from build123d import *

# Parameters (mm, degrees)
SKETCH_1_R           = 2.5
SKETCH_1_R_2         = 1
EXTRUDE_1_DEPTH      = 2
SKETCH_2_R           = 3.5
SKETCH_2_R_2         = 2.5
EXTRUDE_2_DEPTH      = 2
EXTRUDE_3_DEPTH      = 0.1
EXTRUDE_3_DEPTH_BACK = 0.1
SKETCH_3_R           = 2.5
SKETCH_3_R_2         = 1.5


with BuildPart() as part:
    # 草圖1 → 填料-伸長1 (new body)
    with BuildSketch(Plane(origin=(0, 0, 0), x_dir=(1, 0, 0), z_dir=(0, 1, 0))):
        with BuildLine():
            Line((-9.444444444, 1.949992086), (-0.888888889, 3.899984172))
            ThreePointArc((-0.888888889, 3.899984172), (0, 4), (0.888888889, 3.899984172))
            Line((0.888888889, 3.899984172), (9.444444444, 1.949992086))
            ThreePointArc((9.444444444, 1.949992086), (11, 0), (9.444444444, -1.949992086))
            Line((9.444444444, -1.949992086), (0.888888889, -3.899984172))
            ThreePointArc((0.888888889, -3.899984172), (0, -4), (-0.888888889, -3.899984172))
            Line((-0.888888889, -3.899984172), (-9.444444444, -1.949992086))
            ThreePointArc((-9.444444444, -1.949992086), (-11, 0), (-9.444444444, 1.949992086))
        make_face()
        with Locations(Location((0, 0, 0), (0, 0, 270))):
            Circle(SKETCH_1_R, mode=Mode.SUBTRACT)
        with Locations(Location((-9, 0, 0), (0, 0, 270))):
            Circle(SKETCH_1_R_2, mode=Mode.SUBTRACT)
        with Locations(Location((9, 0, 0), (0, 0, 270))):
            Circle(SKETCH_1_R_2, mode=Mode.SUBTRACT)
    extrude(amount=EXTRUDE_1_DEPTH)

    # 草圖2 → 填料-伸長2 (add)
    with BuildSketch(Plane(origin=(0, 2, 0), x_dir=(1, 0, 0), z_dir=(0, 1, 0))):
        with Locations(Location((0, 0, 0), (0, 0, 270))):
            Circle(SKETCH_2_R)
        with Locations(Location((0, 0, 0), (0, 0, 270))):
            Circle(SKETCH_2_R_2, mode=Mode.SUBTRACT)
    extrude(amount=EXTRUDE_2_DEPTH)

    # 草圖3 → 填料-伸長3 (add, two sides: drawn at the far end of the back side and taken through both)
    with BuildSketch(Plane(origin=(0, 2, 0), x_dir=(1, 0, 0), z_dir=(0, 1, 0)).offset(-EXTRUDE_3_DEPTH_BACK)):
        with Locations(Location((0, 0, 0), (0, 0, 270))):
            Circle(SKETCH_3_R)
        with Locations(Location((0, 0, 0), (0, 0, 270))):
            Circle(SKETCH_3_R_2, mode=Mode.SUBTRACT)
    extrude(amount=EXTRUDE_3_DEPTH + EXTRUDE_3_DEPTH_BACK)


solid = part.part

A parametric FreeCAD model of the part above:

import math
import FreeCAD as App
import Part
import Sketcher

V = App.Vector

doc = App.newDocument("Part")
params = doc.addObject("Spreadsheet::Sheet", "Params")
for row, (alias, value) in enumerate([
    ("sketch1_diameter", "2 mm"),
    ("sketch1_diameter2", "5 mm"),
    ("sketch1_radius", "2 mm"),
    ("sketch1_radius2", "4 mm"),
    ("pad1_length", "2 mm"),
    ("sketch2_diameter", "7 mm"),
    ("sketch2_diameter2", "5 mm"),
    ("pad2_length", "2 mm"),
    ("sketch3_diameter", "5 mm"),
    ("sketch3_diameter2", "3 mm"),
    ("pad3_length", "0.1 mm"),
    ("pad3_length2", "0.1 mm"),
], start=1):
    params.set(f"A{row}", alias)
    params.set(f"B{row}", "=" + value)
    params.setAlias(f"B{row}", alias)

body = doc.addObject("PartDesign::Body", "Body")

# Sketch on XZ plane
sketch1 = body.newObject("Sketcher::SketchObject", "Sketch")
sketch1.AttachmentSupport = (doc.getObject("XZ_Plane"), [""])
sketch1.MapMode = "FlatFace"
sketch1.addGeometry([
    Part.LineSegment(V(-0.9, -3.9, 0), V(-9.4, -1.9, 0)),  # 0
    Part.ArcOfCircle(Part.Circle(V(-9, 0, 0), V(0, 0, 1), 2), math.radians(103), math.radians(257)),  # 1
    Part.LineSegment(V(-9.4, 1.9, 0), V(-0.9, 3.9, 0)),  # 2
    Part.ArcOfCircle(Part.Circle(V(0, 0, 0), V(0, 0, 1), 4), math.radians(77), math.radians(103)),  # 3
    Part.LineSegment(V(0.9, 3.9, 0), V(9.4, 1.9, 0)),  # 4
    Part.ArcOfCircle(Part.Circle(V(9, 0, 0), V(0, 0, 1), 2), math.radians(-77), math.radians(77)),  # 5
    Part.LineSegment(V(9.4, -1.9, 0), V(0.9, -3.9, 0)),  # 6
    Part.ArcOfCircle(Part.Circle(V(0, 0, 0), V(0, 0, 1), 4), math.radians(-103), math.radians(-77)),  # 7
    Part.Circle(V(9, 0, 0), V(0, 0, 1), 1),  # 8
    Part.Circle(V(0, 0, 0), V(0, 0, 1), 2.5),  # 9
    Part.Circle(V(-9, 0, 0), V(0, 0, 1), 1),  # 10
], False)
sketch1.addConstraint([
    Sketcher.Constraint("Tangent", 0, 2, 1, 2),
    Sketcher.Constraint("Tangent", 1, 1, 2, 1),
    Sketcher.Constraint("Tangent", 2, 2, 3, 2),
    Sketcher.Constraint("Tangent", 3, 1, 4, 1),
    Sketcher.Constraint("Tangent", 4, 2, 5, 2),
    Sketcher.Constraint("Tangent", 5, 1, 6, 1),
    Sketcher.Constraint("Tangent", 6, 2, 7, 2),
    Sketcher.Constraint("Tangent", 7, 1, 0, 1),
    Sketcher.Constraint("Coincident", 3, 3, -1, 1),
    Sketcher.Constraint("Coincident", 7, 3, -1, 1),
    Sketcher.Constraint("Coincident", 9, 3, -1, 1),
    Sketcher.Constraint("Coincident", 8, 3, 5, 3),
    Sketcher.Constraint("Coincident", 10, 3, 1, 3),
    Sketcher.Constraint("Equal", 1, 5),
    Sketcher.Constraint("Equal", 3, 7),
    Sketcher.Constraint("Equal", 8, 10),
    Sketcher.Constraint("Symmetric", 1, 3, 5, 3, -1, 1),
    Sketcher.Constraint("PointOnObject", 1, 3, -1),
    Sketcher.Constraint("Diameter", 8, 2.0),
    Sketcher.Constraint("Diameter", 9, 5.0),
    Sketcher.Constraint("Radius", 1, 2.0),
    Sketcher.Constraint("Radius", 3, 4.0),
    Sketcher.Constraint("DistanceX", 1, 3, -1, 1, 9.0),
])
sketch1.setExpression("Constraints[18]", "Params.sketch1_diameter")
sketch1.setExpression("Constraints[19]", "Params.sketch1_diameter2")
sketch1.setExpression("Constraints[20]", "Params.sketch1_radius")
sketch1.setExpression("Constraints[21]", "Params.sketch1_radius2")
pad1 = body.newObject("PartDesign::Pad", "Pad")
pad1.Profile = sketch1
pad1.setExpression("Length", "Params.pad1_length")
pad1.Reversed = True

# Sketch on XZ plane
sketch2 = body.newObject("Sketcher::SketchObject", "Sketch001")
sketch2.AttachmentSupport = (doc.getObject("XZ_Plane"), [""])
sketch2.MapMode = "FlatFace"
sketch2.AttachmentOffset = App.Placement(V(0, 0, -2), App.Rotation())
sketch2.addGeometry([
    Part.Circle(V(0, 0, 0), V(0, 0, 1), 3.5),
    Part.Circle(V(0, 0, 0), V(0, 0, 1), 2.5),
], False)
sketch2.addConstraint([
    Sketcher.Constraint("Coincident", 0, 3, -1, 1),
    Sketcher.Constraint("Coincident", 1, 3, -1, 1),
    Sketcher.Constraint("Diameter", 0, 7.0),
    Sketcher.Constraint("Diameter", 1, 5.0),
])
sketch2.setExpression("Constraints[2]", "Params.sketch2_diameter")
sketch2.setExpression("Constraints[3]", "Params.sketch2_diameter2")
pad2 = body.newObject("PartDesign::Pad", "Pad001")
pad2.Profile = sketch2
pad2.setExpression("Length", "Params.pad2_length")
pad2.Reversed = True

# Sketch on XZ plane
sketch3 = body.newObject("Sketcher::SketchObject", "Sketch002")
sketch3.AttachmentSupport = (doc.getObject("XZ_Plane"), [""])
sketch3.MapMode = "FlatFace"
sketch3.AttachmentOffset = App.Placement(V(0, 0, -2), App.Rotation())
sketch3.addGeometry([
    Part.Circle(V(0, 0, 0), V(0, 0, 1), 2.5),
    Part.Circle(V(0, 0, 0), V(0, 0, 1), 1.5),
], False)
sketch3.addConstraint([
    Sketcher.Constraint("Coincident", 0, 3, -1, 1),
    Sketcher.Constraint("Coincident", 1, 3, -1, 1),
    Sketcher.Constraint("Diameter", 0, 5.0),
    Sketcher.Constraint("Diameter", 1, 3.0),
])
sketch3.setExpression("Constraints[2]", "Params.sketch3_diameter")
sketch3.setExpression("Constraints[3]", "Params.sketch3_diameter2")
pad3 = body.newObject("PartDesign::Pad", "Pad002")
pad3.Profile = sketch3
pad3.Type = "TwoLengths"
pad3.setExpression("Length", "Params.pad3_length")
pad3.setExpression("Length2", "Params.pad3_length2")
pad3.Reversed = True

doc.recompute()
